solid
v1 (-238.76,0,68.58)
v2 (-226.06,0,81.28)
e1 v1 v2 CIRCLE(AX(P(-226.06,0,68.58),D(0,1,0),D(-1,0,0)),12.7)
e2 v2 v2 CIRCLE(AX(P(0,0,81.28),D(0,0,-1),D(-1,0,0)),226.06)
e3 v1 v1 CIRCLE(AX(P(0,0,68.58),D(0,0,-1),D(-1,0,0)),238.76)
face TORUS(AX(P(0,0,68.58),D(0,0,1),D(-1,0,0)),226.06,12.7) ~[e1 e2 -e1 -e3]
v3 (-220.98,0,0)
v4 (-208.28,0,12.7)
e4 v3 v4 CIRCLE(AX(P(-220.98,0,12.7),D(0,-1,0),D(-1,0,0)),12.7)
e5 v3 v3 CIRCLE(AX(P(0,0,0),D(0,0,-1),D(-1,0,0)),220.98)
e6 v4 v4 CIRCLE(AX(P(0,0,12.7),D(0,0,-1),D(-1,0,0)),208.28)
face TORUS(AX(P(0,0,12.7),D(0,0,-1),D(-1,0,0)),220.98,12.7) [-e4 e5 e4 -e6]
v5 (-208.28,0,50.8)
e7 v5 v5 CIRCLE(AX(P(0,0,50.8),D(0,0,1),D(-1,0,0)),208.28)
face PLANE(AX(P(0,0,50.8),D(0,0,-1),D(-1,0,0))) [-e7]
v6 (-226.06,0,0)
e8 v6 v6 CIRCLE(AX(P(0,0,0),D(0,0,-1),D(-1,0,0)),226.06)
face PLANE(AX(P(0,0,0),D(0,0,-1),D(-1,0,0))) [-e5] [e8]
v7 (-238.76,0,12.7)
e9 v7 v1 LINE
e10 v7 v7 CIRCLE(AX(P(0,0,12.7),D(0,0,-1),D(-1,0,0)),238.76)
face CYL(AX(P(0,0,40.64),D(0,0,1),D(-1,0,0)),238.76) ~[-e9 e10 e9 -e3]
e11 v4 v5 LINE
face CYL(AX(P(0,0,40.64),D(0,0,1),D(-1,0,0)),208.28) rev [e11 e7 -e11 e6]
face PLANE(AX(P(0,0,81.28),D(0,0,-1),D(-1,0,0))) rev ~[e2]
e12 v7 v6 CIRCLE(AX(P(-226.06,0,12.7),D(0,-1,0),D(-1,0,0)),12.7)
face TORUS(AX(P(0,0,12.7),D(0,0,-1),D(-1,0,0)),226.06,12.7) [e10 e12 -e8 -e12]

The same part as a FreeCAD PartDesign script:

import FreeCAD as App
import Part
import Sketcher
Q = App.Units.Quantity


def edges_at(feature, points):
    """Names of the edges that pass closest to the given points."""
    edges = feature.Shape.Edges
    near = lambda p: min(range(len(edges)), key=lambda i: edges[i].distToShape(Part.Vertex(*p))[0])
    return sorted({f"Edge{near(p) + 1}" for p in points})


def faces_at(feature, points):
    """Names of the faces that lie closest to the given points."""
    faces = feature.Shape.Faces
    near = lambda p: min(range(len(faces)), key=lambda i: faces[i].distToShape(Part.Vertex(*p))[0])
    return sorted({f"Face{near(p) + 1}" for p in points})

doc = App.newDocument("Part")
params = doc.addObject("Spreadsheet::Sheet", "Params")
for row, (alias, value) in enumerate([
    ("sketch1_width", "9.4 in"),
    ("sketch1_height", "3.2 in"),
    ("revolution_angle", "360 deg"),
    ("thickness_wall", "1.2 in"),
    ("fillet_radius", "0.5 in"),
], start=1):
    params.set(f"A{row}", alias)
    params.set(f"B{row}", "=" + value)
    params.setAlias(f"B{row}", alias)

body = doc.addObject("PartDesign::Body", "Body")

# Sketch on XZ plane
sketch1 = body.newObject("Sketcher::SketchObject", "Sketch")
sketch1.AttachmentSupport = (doc.getObject("XZ_Plane"), [""])
sketch1.MapMode = "FlatFace"
sketch1.addGeometry(Part.LineSegment(App.Vector(-239, 81, 0), App.Vector(-239, 0, 0)), False)
sketch1.addGeometry(Part.LineSegment(App.Vector(-239, 0, 0), App.Vector(0, 0, 0)), False)
sketch1.addGeometry(Part.LineSegment(App.Vector(0, 0, 0), App.Vector(0, 81, 0)), False)
sketch1.addGeometry(Part.LineSegment(App.Vector(0, 81, 0), App.Vector(-239, 81, 0)), False)
sketch1.addConstraint(Sketcher.Constraint("Coincident", 0, 2, 1, 1))
sketch1.addConstraint(Sketcher.Constraint("Coincident", 1, 2, 2, 1))
sketch1.addConstraint(Sketcher.Constraint("Coincident", 2, 2, 3, 1))
sketch1.addConstraint(Sketcher.Constraint("Coincident", 3, 2, 0, 1))
sketch1.addConstraint(Sketcher.Constraint("Vertical", 0))
sketch1.addConstraint(Sketcher.Constraint("Horizontal", 1))
sketch1.addConstraint(Sketcher.Constraint("Vertical", 2))
sketch1.addConstraint(Sketcher.Constraint("Horizontal", 3))
sketch1.addConstraint(Sketcher.Constraint("Coincident", 1, 2, -1, 1))
sketch1.addConstraint(Sketcher.Constraint("DistanceX", 1, 1, 1, 2, Q("9.4 in")))
sketch1.addConstraint(Sketcher.Constraint("DistanceY", 0, 2, 0, 1, Q("3.2 in")))
sketch1.setExpression("Constraints[9]", "Params.sketch1_width")
sketch1.setExpression("Constraints[10]", "Params.sketch1_height")
revolution = body.newObject("PartDesign::Revolution", "Revolution")
revolution.Profile = sketch1
revolution.ReferenceAxis = (sketch1, ["V_Axis"])
revolution.setExpression("Angle", "Params.revolution_angle")
doc.recompute()

thickness = body.newObject("PartDesign::Thickness", "Thickness")
thickness.Base = (revolution, faces_at(revolution, [(0, 0, 0)]))
thickness.setExpression("Value", "Params.thickness_wall")
thickness.Reversed = True
thickness.Join = "Arc"
doc.recompute()

fillet = body.newObject("PartDesign::Fillet", "Fillet")
fillet.Base = (thickness, edges_at(thickness, [(238.76, 0, 81.28), (238.76, 0, 0), (208.28, 0, 0)]))
fillet.setExpression("Radius", "Params.fillet_radius")

doc.recompute()
